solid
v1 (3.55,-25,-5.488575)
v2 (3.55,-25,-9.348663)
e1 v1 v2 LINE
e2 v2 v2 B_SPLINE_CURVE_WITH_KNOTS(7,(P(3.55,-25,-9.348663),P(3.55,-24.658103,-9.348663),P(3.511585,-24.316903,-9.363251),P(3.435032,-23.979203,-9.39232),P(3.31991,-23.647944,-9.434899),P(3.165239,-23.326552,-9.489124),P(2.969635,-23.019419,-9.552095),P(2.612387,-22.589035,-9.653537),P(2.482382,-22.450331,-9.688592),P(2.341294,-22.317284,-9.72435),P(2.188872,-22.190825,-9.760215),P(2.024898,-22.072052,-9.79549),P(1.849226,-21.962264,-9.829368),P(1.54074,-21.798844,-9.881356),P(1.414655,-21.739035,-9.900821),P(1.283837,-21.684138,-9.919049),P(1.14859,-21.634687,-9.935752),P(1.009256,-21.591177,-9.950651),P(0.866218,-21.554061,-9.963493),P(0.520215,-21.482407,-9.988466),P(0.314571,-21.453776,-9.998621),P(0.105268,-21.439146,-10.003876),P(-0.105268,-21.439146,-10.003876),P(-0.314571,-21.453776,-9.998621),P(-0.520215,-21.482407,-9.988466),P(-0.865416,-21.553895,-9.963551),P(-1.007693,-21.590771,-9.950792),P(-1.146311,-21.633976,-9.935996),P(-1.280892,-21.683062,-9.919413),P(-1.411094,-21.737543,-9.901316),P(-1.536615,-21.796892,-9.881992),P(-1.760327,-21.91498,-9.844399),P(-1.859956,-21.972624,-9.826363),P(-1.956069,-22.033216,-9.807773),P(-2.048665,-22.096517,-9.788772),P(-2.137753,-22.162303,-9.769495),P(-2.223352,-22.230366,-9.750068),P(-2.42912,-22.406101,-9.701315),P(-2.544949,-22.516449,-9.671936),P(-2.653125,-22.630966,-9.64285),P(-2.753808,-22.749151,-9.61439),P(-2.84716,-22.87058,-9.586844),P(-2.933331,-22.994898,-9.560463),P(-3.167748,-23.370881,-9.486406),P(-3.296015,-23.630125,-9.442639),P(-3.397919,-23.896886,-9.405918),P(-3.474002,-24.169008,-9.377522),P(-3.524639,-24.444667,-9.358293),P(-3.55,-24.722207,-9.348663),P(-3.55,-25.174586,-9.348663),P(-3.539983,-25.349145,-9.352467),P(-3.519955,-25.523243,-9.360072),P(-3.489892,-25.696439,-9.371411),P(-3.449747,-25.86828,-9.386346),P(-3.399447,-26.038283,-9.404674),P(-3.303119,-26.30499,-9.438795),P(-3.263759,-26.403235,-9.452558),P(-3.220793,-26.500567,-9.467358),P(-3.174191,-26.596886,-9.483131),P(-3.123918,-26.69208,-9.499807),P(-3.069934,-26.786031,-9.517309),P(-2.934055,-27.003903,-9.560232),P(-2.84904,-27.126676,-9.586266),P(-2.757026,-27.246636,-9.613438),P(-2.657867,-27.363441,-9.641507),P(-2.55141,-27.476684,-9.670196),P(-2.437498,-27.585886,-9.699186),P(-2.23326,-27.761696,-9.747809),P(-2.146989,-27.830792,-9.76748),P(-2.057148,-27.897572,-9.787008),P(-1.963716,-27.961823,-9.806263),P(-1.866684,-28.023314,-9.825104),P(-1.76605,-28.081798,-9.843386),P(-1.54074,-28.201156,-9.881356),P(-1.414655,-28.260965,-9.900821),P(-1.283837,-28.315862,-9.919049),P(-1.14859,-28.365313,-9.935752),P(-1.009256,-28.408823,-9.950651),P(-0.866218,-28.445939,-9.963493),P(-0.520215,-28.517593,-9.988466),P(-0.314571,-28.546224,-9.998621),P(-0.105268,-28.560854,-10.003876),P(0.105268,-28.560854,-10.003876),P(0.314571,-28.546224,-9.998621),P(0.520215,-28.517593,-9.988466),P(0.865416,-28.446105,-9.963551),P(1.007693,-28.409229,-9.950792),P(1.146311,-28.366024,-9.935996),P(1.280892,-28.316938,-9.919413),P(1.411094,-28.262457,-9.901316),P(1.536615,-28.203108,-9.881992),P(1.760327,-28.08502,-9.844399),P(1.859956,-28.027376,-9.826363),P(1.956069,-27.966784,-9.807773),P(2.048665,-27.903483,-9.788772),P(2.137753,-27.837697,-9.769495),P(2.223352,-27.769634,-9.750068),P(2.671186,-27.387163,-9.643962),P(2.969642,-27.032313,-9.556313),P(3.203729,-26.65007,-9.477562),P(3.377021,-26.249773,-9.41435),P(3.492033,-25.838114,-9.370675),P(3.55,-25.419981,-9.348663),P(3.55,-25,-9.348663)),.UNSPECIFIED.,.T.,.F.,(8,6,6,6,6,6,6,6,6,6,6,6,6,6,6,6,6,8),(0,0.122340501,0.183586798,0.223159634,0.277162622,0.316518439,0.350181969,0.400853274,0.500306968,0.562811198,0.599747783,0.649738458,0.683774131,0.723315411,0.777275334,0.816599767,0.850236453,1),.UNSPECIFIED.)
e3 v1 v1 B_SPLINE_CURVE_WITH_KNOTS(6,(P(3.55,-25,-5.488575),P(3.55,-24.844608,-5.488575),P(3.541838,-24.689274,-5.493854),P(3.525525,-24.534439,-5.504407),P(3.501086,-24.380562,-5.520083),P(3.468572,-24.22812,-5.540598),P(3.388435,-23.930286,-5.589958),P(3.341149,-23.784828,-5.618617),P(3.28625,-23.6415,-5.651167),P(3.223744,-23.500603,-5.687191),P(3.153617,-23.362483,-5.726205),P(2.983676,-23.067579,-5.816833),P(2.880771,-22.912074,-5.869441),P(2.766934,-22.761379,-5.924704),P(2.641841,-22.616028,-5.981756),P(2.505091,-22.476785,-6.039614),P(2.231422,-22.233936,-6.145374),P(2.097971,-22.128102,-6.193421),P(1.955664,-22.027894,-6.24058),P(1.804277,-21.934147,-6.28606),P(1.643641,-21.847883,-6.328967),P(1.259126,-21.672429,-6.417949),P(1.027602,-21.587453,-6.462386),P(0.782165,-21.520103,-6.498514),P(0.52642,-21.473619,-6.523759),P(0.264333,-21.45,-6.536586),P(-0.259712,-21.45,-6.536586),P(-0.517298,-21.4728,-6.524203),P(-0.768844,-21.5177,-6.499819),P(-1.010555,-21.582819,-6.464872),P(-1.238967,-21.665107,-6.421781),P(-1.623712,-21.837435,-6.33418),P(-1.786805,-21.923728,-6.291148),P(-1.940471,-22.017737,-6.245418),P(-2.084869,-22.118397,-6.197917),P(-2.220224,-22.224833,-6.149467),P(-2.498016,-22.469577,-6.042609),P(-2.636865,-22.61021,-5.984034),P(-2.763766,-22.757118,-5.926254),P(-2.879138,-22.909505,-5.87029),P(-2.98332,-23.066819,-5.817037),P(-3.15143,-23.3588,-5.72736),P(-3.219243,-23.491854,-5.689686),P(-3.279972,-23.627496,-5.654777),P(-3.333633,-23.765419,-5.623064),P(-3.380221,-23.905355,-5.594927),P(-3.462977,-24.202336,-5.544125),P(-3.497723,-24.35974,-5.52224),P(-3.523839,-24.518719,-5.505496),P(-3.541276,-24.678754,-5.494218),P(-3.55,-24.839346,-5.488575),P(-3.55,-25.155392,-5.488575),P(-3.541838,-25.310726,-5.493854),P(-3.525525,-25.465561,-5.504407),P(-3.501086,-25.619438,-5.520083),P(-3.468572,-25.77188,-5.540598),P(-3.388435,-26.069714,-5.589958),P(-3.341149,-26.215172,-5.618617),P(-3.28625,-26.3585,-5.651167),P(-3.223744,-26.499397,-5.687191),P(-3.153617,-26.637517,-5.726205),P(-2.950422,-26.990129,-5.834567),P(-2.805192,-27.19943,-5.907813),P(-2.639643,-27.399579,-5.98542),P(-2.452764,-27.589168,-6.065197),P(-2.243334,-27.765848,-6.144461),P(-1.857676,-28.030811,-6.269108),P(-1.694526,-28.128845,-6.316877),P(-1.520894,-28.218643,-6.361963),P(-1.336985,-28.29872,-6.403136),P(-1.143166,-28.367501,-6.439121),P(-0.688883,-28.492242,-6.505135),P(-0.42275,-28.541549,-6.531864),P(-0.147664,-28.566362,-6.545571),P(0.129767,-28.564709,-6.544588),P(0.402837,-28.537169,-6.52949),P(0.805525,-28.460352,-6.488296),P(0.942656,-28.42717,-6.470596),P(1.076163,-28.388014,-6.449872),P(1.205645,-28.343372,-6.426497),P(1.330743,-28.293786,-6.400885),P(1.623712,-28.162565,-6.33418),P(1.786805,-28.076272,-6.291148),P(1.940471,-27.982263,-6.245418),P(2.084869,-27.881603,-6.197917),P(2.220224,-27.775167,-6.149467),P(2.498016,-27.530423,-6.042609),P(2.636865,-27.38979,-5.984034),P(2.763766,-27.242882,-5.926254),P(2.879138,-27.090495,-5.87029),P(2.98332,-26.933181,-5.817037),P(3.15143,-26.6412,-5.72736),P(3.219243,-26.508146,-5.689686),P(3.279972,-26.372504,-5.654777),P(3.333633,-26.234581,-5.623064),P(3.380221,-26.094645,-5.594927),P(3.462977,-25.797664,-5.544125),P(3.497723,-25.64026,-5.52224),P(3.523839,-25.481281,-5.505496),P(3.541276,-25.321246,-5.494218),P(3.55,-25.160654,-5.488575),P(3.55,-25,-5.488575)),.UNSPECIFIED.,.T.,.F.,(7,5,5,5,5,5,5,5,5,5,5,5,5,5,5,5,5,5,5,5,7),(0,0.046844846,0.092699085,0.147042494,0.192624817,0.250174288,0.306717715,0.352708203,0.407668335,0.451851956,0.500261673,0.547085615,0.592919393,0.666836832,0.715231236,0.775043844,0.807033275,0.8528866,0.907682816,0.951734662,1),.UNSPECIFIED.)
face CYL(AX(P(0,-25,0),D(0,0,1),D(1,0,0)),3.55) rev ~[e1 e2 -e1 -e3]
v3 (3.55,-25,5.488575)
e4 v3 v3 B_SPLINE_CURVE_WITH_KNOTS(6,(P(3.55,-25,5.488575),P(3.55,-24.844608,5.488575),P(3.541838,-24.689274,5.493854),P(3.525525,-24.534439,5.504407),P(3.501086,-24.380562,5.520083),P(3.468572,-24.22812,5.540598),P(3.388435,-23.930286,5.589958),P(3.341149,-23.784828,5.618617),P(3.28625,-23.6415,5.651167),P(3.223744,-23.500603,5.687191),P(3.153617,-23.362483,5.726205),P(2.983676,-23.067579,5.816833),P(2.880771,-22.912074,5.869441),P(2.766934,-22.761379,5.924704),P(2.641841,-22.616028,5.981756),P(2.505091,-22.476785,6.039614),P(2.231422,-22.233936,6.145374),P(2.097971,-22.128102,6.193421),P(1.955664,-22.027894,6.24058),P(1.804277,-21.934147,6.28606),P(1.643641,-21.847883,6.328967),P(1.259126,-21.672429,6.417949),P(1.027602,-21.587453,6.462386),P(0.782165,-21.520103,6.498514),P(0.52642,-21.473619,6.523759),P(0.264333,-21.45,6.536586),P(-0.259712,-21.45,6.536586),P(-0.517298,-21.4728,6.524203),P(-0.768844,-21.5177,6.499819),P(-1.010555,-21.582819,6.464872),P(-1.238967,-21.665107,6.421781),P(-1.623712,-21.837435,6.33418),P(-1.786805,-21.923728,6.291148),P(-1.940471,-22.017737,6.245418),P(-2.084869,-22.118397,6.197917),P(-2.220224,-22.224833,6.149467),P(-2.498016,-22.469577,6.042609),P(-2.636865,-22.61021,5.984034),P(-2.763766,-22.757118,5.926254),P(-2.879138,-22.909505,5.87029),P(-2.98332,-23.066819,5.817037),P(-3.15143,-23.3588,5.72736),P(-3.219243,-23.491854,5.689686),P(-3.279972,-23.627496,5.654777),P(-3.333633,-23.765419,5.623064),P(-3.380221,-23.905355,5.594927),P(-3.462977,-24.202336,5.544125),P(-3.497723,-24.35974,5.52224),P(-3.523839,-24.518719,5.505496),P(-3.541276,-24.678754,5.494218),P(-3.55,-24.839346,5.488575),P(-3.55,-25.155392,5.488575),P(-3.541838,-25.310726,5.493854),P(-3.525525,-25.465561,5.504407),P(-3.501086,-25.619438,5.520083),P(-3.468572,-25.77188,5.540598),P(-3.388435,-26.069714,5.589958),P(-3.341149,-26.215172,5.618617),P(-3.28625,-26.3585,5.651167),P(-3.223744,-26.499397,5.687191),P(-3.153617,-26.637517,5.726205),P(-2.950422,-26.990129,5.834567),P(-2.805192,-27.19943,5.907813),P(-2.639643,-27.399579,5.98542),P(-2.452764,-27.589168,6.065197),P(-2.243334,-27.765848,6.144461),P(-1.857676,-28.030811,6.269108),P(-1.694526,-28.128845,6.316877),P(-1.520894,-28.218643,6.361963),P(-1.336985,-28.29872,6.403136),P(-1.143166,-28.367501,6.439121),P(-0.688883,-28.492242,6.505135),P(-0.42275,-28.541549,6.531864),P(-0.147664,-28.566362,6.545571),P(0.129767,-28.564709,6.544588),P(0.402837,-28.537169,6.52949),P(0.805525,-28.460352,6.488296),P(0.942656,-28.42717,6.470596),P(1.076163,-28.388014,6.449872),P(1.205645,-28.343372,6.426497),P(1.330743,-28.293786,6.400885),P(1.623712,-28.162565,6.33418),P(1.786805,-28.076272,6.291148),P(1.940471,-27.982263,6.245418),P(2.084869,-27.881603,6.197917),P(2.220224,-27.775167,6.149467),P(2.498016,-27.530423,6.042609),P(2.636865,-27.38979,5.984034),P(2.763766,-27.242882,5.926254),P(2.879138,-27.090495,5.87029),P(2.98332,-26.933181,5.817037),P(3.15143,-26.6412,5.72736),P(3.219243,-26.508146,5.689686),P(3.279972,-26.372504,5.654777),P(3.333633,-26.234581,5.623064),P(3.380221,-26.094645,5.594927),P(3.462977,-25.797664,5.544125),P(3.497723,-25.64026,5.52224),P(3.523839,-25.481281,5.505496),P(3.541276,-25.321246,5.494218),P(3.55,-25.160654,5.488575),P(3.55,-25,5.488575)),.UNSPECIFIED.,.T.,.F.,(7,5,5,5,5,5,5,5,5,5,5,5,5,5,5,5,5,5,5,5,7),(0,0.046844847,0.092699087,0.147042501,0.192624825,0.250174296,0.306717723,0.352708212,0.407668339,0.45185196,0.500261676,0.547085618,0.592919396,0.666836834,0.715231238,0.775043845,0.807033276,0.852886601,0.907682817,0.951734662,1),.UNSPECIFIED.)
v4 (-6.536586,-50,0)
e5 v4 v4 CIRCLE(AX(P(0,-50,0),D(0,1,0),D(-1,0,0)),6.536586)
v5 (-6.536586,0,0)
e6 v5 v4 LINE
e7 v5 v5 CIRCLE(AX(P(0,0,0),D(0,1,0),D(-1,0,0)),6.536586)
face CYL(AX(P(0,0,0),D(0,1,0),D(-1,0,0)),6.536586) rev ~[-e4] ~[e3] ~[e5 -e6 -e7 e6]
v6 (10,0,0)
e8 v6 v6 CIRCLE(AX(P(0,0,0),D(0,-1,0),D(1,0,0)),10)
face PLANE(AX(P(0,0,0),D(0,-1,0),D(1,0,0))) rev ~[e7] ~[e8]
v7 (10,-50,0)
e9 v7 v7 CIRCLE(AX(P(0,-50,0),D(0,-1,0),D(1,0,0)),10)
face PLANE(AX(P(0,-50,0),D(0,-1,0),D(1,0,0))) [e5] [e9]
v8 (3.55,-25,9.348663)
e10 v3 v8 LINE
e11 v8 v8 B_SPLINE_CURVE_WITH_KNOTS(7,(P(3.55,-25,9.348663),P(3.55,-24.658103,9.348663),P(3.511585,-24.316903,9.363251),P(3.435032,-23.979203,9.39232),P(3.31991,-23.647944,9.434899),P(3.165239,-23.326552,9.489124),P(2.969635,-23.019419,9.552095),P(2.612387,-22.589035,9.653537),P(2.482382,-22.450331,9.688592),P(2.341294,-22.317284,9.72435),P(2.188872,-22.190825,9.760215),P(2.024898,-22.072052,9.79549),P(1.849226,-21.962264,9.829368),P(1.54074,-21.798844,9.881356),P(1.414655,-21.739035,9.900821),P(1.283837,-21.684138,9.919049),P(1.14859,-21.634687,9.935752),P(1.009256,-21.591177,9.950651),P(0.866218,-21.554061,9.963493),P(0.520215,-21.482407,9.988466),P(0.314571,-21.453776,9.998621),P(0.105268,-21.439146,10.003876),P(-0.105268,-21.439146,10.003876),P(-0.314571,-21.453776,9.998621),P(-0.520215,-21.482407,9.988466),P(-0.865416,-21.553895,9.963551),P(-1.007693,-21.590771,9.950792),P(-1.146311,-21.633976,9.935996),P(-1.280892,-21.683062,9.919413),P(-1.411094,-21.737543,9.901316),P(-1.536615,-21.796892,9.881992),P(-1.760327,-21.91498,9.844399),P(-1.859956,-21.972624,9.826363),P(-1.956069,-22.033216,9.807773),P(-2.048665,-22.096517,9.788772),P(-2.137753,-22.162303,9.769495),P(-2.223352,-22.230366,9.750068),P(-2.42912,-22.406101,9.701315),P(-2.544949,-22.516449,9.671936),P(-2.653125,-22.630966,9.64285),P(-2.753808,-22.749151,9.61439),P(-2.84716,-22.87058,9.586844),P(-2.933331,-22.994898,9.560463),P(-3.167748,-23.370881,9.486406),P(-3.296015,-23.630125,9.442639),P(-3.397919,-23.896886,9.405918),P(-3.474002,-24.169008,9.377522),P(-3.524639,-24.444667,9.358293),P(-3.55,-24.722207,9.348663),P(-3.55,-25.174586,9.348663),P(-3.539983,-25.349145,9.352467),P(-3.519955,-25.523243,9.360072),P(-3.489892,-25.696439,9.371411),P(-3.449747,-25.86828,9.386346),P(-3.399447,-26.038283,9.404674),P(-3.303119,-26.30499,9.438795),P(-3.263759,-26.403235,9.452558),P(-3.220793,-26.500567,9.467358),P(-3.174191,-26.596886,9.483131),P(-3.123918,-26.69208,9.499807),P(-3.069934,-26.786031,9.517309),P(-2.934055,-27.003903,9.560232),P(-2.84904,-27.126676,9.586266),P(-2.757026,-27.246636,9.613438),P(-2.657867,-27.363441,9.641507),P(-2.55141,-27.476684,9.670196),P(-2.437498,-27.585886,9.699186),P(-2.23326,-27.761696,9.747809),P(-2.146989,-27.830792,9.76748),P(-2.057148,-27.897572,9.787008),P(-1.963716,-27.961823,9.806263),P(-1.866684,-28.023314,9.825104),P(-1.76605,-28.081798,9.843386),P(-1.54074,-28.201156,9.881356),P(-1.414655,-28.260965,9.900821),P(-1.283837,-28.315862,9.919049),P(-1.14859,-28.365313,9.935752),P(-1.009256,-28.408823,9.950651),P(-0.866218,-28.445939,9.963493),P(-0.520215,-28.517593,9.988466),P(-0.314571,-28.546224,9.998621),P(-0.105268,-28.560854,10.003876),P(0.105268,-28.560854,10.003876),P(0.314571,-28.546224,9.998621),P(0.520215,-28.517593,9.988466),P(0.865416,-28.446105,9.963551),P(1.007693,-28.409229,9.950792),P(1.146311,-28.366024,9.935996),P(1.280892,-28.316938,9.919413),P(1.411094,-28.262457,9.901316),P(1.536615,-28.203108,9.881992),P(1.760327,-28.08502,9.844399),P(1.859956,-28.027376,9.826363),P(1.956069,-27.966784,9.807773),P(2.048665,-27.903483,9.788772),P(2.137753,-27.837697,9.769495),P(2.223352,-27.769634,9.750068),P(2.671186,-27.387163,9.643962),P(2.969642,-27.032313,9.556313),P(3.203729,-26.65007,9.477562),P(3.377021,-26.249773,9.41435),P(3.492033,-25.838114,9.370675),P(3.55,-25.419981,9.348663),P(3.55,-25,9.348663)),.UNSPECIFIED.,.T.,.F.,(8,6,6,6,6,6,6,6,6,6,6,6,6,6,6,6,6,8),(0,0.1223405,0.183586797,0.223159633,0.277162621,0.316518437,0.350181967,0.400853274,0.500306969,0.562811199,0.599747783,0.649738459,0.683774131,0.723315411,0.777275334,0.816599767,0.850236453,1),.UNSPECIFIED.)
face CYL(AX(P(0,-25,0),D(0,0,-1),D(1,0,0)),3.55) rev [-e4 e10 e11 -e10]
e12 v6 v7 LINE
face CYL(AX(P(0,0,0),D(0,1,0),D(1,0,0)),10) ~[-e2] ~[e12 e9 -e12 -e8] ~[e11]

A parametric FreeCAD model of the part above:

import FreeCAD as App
import Part
import Sketcher
Q = App.Units.Quantity

doc = App.newDocument("Part")
body = doc.addObject("PartDesign::Body", "Body")

# Sketch on XZ plane
sketch1 = body.newObject("Sketcher::SketchObject", "Sketch")
sketch1.AttachmentSupport = (doc.getObject("XZ_Plane"), [""])
sketch1.MapMode = "FlatFace"
sketch1.addGeometry(Part.Circle(App.Vector(0, 0, 0), App.Vector(0, 0, 1), 10), False)
sketch1.addConstraint([
    Sketcher.Constraint("Coincident", 0, 3, -1, 1),
    Sketcher.Constraint("Diameter", 0, Q("20 mm")),
])
pad1 = body.newObject("PartDesign::Pad", "Pad")
pad1.Profile = sketch1
pad1.Length = 50

# Sketch on XY plane
sketch2 = body.newObject("Sketcher::SketchObject", "Sketch001")
sketch2.AttachmentSupport = (doc.getObject("XY_Plane"), [""])
sketch2.MapMode = "FlatFace"
sketch2.addGeometry(Part.Circle(App.Vector(0, -25, 0), App.Vector(0, 0, 1), 3.55), False)
sketch2.addConstraint([
    Sketcher.Constraint("PointOnObject", 0, 3, -2),
    Sketcher.Constraint("Diameter", 0, Q("7.1 mm")),
    Sketcher.Constraint("DistanceY", 0, 3, -1, 1, Q("25 mm")),
])
pocket1 = body.newObject("PartDesign::Pocket", "Pocket")
pocket1.Profile = sketch2
pocket1.Type = "ThroughAll"
pocket1.Midplane = True

# Sketch on XZ plane
sketch3 = body.newObject("Sketcher::SketchObject", "Sketch002")
sketch3.AttachmentSupport = (doc.getObject("XZ_Plane"), [""])
sketch3.MapMode = "FlatFace"
sketch3.addGeometry(Part.Circle(App.Vector(0, 0, 0), App.Vector(0, 0, 1), 6.536586), False)
sketch3.addConstraint([
    Sketcher.Constraint("Coincident", 0, 3, -1, 1),
    Sketcher.Constraint("Diameter", 0, Q("13.073172 mm")),
])
pocket2 = body.newObject("PartDesign::Pocket", "Pocket001")
pocket2.Profile = sketch3
pocket2.Length = 60
pocket2.Reversed = True

doc.recompute()
